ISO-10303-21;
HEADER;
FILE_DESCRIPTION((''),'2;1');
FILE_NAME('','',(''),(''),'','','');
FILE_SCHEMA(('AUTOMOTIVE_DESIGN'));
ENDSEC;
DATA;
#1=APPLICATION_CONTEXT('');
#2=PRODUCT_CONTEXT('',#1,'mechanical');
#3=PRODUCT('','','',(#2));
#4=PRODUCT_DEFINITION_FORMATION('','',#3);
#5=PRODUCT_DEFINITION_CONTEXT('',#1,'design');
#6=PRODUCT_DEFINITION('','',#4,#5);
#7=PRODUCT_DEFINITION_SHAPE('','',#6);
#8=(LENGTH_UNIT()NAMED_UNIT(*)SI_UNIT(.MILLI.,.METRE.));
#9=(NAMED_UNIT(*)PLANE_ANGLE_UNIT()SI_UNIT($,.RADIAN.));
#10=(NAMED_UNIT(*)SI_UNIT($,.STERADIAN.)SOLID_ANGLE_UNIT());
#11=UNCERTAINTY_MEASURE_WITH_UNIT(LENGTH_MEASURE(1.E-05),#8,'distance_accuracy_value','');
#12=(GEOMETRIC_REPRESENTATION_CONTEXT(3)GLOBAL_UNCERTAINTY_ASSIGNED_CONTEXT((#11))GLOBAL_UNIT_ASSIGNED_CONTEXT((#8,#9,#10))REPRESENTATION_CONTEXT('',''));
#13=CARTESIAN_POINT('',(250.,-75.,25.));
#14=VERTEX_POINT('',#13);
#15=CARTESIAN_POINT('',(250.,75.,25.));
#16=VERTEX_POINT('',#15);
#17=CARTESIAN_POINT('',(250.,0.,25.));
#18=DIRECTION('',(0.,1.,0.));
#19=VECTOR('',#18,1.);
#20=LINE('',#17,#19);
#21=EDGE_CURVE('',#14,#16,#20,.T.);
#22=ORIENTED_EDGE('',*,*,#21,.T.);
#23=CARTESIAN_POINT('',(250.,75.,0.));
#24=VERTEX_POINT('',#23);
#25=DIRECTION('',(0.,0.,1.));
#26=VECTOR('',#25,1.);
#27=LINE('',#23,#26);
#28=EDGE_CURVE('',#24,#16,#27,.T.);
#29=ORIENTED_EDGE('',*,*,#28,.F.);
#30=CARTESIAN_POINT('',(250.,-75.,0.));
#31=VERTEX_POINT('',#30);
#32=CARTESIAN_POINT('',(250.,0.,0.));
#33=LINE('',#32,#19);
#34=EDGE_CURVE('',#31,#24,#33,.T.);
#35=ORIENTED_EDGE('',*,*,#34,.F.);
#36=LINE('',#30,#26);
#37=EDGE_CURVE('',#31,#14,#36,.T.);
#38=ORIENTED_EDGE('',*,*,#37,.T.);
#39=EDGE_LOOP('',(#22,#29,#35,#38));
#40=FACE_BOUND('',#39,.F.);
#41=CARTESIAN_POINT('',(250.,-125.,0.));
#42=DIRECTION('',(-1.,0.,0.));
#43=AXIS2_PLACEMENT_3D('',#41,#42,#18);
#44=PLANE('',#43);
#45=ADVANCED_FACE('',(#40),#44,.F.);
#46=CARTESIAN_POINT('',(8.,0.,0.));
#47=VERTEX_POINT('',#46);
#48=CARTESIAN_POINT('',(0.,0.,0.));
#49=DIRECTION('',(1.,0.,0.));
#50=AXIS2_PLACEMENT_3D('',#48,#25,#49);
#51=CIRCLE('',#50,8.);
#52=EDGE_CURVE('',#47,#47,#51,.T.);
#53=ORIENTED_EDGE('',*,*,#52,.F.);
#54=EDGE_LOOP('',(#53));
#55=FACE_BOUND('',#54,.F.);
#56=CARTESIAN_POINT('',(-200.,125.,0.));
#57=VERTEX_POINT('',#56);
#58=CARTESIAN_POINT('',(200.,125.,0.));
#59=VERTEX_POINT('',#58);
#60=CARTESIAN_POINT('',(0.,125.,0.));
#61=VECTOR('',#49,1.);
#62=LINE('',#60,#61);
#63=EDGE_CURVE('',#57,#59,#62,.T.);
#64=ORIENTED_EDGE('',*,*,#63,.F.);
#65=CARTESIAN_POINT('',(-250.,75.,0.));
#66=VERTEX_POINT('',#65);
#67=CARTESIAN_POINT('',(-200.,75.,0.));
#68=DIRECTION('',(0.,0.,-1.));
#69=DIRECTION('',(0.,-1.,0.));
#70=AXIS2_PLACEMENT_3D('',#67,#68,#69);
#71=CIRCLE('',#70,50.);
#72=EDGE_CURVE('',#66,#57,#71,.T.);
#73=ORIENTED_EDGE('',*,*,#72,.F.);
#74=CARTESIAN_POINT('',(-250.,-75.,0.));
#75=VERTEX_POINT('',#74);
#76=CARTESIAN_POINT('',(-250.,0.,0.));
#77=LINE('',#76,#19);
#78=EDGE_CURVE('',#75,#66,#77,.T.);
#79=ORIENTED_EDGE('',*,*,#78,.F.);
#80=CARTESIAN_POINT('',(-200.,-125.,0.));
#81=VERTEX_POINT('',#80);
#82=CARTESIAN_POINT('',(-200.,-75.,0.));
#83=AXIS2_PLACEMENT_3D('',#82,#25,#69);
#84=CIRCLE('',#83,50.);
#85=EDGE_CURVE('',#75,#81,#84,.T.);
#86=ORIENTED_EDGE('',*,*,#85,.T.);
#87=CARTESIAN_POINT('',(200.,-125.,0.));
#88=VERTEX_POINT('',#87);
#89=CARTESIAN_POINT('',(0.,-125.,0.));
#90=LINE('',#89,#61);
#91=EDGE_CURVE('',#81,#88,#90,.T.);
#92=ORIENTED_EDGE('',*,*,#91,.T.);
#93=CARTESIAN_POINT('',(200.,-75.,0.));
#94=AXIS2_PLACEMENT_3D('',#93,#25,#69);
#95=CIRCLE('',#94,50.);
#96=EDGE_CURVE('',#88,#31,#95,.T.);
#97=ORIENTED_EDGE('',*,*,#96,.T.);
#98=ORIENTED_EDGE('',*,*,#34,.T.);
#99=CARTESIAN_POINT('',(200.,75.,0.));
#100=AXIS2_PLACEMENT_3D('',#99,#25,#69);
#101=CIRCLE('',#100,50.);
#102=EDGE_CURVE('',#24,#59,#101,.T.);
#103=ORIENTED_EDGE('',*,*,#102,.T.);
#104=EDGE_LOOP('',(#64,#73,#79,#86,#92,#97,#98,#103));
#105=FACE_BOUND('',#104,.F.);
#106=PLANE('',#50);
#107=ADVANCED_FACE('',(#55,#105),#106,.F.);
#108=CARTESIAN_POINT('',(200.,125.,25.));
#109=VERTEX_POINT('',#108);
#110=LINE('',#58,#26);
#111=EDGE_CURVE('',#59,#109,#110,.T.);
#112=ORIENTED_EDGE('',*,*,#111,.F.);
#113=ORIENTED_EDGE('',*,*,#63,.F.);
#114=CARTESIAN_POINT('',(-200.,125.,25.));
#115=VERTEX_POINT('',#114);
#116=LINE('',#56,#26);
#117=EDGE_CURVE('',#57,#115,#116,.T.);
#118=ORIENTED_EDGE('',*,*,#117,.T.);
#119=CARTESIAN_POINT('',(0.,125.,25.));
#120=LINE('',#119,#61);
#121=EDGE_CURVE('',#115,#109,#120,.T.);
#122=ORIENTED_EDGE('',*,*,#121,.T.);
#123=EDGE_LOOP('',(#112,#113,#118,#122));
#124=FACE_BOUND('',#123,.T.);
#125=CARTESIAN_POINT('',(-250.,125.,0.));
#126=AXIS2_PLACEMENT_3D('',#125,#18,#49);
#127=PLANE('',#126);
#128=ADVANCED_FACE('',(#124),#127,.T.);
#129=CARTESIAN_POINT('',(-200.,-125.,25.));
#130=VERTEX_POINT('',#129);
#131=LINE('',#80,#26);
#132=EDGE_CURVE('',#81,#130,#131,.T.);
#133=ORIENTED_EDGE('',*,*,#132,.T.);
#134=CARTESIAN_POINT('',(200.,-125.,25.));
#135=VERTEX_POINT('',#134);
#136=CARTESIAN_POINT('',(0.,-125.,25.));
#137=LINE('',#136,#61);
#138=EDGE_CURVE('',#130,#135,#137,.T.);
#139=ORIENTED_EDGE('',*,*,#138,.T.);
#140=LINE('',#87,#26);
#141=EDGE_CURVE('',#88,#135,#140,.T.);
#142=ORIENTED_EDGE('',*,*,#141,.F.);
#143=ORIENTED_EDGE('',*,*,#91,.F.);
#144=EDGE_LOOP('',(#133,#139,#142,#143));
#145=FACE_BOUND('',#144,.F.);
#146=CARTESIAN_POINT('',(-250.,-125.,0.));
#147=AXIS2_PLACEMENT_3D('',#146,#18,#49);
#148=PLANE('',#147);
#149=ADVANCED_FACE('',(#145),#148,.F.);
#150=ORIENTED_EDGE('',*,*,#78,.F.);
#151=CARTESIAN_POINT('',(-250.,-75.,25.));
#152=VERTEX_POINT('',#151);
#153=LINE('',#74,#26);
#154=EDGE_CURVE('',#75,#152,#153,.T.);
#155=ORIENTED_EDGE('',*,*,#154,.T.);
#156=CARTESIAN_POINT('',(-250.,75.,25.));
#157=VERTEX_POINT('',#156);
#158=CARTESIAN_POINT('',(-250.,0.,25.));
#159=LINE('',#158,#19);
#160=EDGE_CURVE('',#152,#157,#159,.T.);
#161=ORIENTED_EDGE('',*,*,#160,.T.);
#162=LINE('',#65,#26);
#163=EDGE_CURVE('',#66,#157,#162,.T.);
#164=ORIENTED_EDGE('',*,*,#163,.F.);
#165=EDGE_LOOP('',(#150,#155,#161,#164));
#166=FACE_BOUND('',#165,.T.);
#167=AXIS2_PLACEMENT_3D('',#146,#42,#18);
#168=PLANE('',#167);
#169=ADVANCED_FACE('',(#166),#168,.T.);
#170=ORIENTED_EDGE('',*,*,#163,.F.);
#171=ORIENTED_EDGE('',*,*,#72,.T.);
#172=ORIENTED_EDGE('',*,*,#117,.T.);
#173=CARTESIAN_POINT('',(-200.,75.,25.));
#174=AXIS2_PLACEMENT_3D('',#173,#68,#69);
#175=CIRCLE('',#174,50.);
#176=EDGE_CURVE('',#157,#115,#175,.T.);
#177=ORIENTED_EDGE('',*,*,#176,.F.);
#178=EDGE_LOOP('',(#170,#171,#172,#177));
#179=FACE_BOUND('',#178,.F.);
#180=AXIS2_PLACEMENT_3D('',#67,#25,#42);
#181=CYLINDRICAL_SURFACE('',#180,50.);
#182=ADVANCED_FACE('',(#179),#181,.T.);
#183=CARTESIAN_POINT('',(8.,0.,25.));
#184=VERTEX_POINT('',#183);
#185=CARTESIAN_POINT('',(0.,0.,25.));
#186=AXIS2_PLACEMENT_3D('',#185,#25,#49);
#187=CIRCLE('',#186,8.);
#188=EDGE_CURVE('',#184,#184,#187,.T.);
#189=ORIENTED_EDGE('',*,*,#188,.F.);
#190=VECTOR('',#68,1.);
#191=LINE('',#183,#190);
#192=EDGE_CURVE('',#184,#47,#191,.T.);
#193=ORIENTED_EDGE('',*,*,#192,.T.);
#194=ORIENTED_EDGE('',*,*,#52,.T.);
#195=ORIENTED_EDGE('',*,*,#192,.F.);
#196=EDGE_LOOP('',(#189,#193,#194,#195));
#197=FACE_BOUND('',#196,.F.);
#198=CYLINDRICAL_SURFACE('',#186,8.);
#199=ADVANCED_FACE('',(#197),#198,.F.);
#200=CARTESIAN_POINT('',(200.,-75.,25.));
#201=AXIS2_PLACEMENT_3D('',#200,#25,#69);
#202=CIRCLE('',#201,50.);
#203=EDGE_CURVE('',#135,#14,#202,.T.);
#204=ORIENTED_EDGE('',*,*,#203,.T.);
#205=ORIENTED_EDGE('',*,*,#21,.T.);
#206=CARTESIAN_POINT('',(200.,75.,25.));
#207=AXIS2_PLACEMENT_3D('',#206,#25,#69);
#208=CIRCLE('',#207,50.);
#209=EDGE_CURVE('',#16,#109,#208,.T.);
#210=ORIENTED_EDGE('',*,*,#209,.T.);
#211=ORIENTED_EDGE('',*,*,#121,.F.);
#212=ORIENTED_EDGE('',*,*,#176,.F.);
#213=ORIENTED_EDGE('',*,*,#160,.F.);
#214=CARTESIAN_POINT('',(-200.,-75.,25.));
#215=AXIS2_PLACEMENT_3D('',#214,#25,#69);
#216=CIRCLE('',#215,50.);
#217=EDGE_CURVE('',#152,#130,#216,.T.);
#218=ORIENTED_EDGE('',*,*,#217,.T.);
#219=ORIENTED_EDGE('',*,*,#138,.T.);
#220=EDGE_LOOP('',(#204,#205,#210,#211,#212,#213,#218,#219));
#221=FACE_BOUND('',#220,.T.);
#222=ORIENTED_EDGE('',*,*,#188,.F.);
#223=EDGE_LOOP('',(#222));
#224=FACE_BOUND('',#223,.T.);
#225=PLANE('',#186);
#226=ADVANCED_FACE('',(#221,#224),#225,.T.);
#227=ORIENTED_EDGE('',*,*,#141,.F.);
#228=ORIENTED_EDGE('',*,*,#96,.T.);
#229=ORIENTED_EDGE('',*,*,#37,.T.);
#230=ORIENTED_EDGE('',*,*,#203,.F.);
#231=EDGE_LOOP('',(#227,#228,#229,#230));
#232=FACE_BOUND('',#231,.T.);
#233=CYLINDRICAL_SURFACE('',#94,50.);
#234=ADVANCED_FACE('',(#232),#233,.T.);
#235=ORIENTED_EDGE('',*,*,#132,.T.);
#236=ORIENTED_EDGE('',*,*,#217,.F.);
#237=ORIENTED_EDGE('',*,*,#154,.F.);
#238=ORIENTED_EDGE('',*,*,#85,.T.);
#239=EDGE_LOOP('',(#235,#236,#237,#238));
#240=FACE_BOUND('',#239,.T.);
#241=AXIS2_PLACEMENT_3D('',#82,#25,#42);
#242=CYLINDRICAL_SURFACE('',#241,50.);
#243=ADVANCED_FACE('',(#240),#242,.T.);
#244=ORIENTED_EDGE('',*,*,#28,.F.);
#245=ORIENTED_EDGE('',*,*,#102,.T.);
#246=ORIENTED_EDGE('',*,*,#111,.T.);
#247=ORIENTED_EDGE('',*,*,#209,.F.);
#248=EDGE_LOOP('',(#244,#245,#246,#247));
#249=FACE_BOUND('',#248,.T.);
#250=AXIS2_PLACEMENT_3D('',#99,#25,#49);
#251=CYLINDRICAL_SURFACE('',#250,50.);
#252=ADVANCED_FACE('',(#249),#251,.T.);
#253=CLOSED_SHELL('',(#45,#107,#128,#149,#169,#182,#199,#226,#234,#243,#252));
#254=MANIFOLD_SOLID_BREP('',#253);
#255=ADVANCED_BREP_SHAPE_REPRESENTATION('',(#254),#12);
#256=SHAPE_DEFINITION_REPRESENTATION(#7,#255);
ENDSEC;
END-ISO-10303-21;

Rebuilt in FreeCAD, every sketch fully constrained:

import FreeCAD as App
import Part
import Sketcher

V = App.Vector


def edges_at(feature, points):
    """Names of the edges that pass closest to the given points."""
    edges = feature.Shape.Edges
    near = lambda p: min(range(len(edges)), key=lambda i: edges[i].distToShape(Part.Vertex(*p))[0])
    return sorted({f"Edge{near(p) + 1}" for p in points})


def add_polygon(sketch, points):
    """Adds a closed chain of lines whose ends are joined by coincident constraints."""
    first, n = sketch.GeometryCount, len(points)
    for a, b in zip(points, points[1:] + points[:1]):
        sketch.addGeometry(Part.LineSegment(App.Vector(*a, 0), App.Vector(*b, 0)), False)
    for i in range(n):
        sketch.addConstraint(Sketcher.Constraint("Coincident", first + i, 2, first + (i + 1) % n, 1))

doc = App.newDocument("Part")
body = doc.addObject("PartDesign::Body", "Body")

sketch1 = body.newObject("Sketcher::SketchObject", "Sketch")
sketch1.AttachmentSupport = (doc.getObject("XY_Plane"), [""])
sketch1.MapMode = "FlatFace"
add_polygon(sketch1, [(-250, 125), (-250, -125), (250, -125), (250, 125)])
sketch1.addConstraint([
    Sketcher.Constraint("Vertical", 0),
    Sketcher.Constraint("Horizontal", 1),
    Sketcher.Constraint("Vertical", 2),
    Sketcher.Constraint("Horizontal", 3),
    Sketcher.Constraint("Symmetric", 0, 2, 2, 2, -1, 1),
    Sketcher.Constraint("DistanceX", 1, 1, 1, 2, 500.0),
    Sketcher.Constraint("DistanceY", 0, 2, 0, 1, 250.0),
])
pad1 = body.newObject("PartDesign::Pad", "Pad")
pad1.Profile = sketch1
pad1.Length = 25
doc.recompute()

fillet = body.newObject("PartDesign::Fillet", "Fillet")
fillet.Base = (pad1, edges_at(pad1, [
    (-250, -125, 12.5),
    (250, -125, 12.5),
    (250, 125, 12.5),
    (-250, 125, 12.5),
]))
fillet.Radius = 50

sketch2 = body.newObject("Sketcher::SketchObject", "Sketch001")
sketch2.AttachmentSupport = (doc.getObject("XY_Plane"), [""])
sketch2.MapMode = "FlatFace"
sketch2.AttachmentOffset = App.Placement(V(0, 0, 25), App.Rotation())
sketch2.addGeometry(Part.Circle(V(0, 0, 0), V(0, 0, 1), 8), False)
sketch2.addConstraint([
    Sketcher.Constraint("Coincident", 0, 3, -1, 1),
    Sketcher.Constraint("Diameter", 0, 16.0),
])
pocket1 = body.newObject("PartDesign::Pocket", "Pocket")
pocket1.Profile = sketch2
pocket1.Type = "ThroughAll"

doc.recompute()
